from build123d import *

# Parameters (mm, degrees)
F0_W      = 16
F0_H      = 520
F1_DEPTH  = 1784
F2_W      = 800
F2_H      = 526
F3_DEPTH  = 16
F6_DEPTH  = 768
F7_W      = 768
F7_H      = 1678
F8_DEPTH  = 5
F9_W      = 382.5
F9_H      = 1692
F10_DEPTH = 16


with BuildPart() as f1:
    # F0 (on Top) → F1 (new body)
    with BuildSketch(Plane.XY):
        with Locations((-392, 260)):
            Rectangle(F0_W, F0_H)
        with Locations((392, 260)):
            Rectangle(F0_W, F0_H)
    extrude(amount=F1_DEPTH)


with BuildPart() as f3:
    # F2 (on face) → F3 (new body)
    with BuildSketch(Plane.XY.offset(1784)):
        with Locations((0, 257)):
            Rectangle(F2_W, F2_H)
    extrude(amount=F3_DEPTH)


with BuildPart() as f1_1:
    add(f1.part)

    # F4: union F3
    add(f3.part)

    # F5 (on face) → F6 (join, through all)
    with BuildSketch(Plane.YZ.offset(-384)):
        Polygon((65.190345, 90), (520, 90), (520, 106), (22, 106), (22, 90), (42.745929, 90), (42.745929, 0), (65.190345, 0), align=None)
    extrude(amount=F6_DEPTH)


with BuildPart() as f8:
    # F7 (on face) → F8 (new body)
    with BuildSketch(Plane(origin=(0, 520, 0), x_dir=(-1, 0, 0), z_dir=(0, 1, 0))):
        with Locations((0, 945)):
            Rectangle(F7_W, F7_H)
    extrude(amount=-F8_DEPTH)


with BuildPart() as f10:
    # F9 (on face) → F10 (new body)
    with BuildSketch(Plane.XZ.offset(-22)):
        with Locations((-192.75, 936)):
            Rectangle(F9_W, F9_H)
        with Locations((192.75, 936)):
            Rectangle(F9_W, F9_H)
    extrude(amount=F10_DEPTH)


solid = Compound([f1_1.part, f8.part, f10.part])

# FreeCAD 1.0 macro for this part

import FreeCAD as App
import Part
import Sketcher
from FreeCAD import Vector
Q = App.Units.Quantity


def add_polygon(sketch, points):
    """Adds a closed chain of lines whose ends are joined by coincident constraints."""
    first, n = sketch.GeometryCount, len(points)
    for a, b in zip(points, points[1:] + points[:1]):
        sketch.addGeometry(Part.LineSegment(App.Vector(*a, 0), App.Vector(*b, 0)), False)
    for i in range(n):
        sketch.addConstraint(Sketcher.Constraint("Coincident", first + i, 2, first + (i + 1) % n, 1))

doc = App.newDocument("Part")
body = doc.addObject("PartDesign::Body", "Body")
body.AllowCompound = True

# Sketch on XY plane
sketch1 = body.newObject("Sketcher::SketchObject", "Sketch")
sketch1.AttachmentSupport = (doc.getObject("XY_Plane"), [""])
sketch1.MapMode = "FlatFace"
add_polygon(sketch1, [(-400, 520), (-400, 0), (-384, 0), (-384, 520)])  # lines 0-3
add_polygon(sketch1, [(384, 520), (384, 0), (400, 0), (400, 520)])  # lines 4-7
sketch1.addConstraint(Sketcher.Constraint("Vertical", 0))
sketch1.addConstraint(Sketcher.Constraint("Horizontal", 1))
sketch1.addConstraint(Sketcher.Constraint("Vertical", 2))
sketch1.addConstraint(Sketcher.Constraint("Horizontal", 3))
sketch1.addConstraint(Sketcher.Constraint("Vertical", 4))
sketch1.addConstraint(Sketcher.Constraint("Horizontal", 5))
sketch1.addConstraint(Sketcher.Constraint("Vertical", 6))
sketch1.addConstraint(Sketcher.Constraint("Horizontal", 7))
sketch1.addConstraint(Sketcher.Constraint("Symmetric", 1, 2, 4, 2, -1, 1))
sketch1.addConstraint(Sketcher.Constraint("Symmetric", 0, 2, 5, 2, -2))
sketch1.addConstraint(Sketcher.Constraint("Horizontal", 3, 2, 6, 2))
sketch1.addConstraint(Sketcher.Constraint("DistanceX", 1, 1, 1, 2, Q("16 mm")))
sketch1.addConstraint(Sketcher.Constraint("DistanceY", 0, 2, 0, 1, Q("520 mm")))
sketch1.addConstraint(Sketcher.Constraint("DistanceX", 0, 2, -1, 1, Q("400 mm")))
pad1 = body.newObject("PartDesign::Pad", "Pad")
pad1.Profile = sketch1
pad1.Length = 1784
body2 = doc.addObject("PartDesign::Body", "Body001")

# Sketch on XY plane
sketch2 = body2.newObject("Sketcher::SketchObject", "Sketch001")
sketch2.AttachmentSupport = (doc.getObject("XY_Plane001"), [""])
sketch2.MapMode = "FlatFace"
sketch2.AttachmentOffset = App.Placement(Vector(0, 0, 1784), App.Rotation())
add_polygon(sketch2, [(-400, 520), (-400, -6), (400, -6), (400, 520)])  # lines 0-3
sketch2.addConstraint(Sketcher.Constraint("Vertical", 0))
sketch2.addConstraint(Sketcher.Constraint("Horizontal", 1))
sketch2.addConstraint(Sketcher.Constraint("Vertical", 2))
sketch2.addConstraint(Sketcher.Constraint("Horizontal", 3))
sketch2.addConstraint(Sketcher.Constraint("DistanceX", 1, 1, 1, 2, Q("800 mm")))
sketch2.addConstraint(Sketcher.Constraint("DistanceY", 0, 2, 0, 1, Q("526 mm")))
sketch2.addConstraint(Sketcher.Constraint("DistanceX", 0, 2, -1, 1, Q("400 mm")))
sketch2.addConstraint(Sketcher.Constraint("DistanceY", 0, 2, -1, 1, Q("6 mm")))
pad2 = body2.newObject("PartDesign::Pad", "Pad001")
pad2.Profile = sketch2
pad2.Length = 16
doc.recompute()

boolean = body.newObject("PartDesign::Boolean", "Boolean")
boolean.Type = "Fuse"
boolean.addObjects([body2])

# Sketch on YZ plane
sketch3 = body.newObject("Sketcher::SketchObject", "Sketch002")
sketch3.AttachmentSupport = (doc.getObject("YZ_Plane"), [""])
sketch3.MapMode = "FlatFace"
sketch3.AttachmentOffset = App.Placement(Vector(0, 0, -384), App.Rotation())
add_polygon(sketch3, [(65, 90), (520, 90), (520, 106), (22, 106), (22, 90), (43, 90), (43, 0), (65, 0)])  # lines 0-7
sketch3.addConstraint(Sketcher.Constraint("Horizontal", 0))
sketch3.addConstraint(Sketcher.Constraint("Vertical", 1))
sketch3.addConstraint(Sketcher.Constraint("Horizontal", 2))
sketch3.addConstraint(Sketcher.Constraint("Vertical", 3))
sketch3.addConstraint(Sketcher.Constraint("Horizontal", 4))
sketch3.addConstraint(Sketcher.Constraint("Vertical", 5))
sketch3.addConstraint(Sketcher.Constraint("Horizontal", 6))
sketch3.addConstraint(Sketcher.Constraint("Vertical", 7))
sketch3.addConstraint(Sketcher.Constraint("PointOnObject", 5, 2, -1))
sketch3.addConstraint(Sketcher.Constraint("Horizontal", 0, 2, 3, 2))
sketch3.addConstraint(Sketcher.Constraint("DistanceX", 2, 2, 2, 1, Q("498 mm")))
sketch3.addConstraint(Sketcher.Constraint("DistanceY", 1, 1, 1, 2, Q("16 mm")))
sketch3.addConstraint(Sketcher.Constraint("DistanceY", 5, 2, 5, 1, Q("90 mm")))
sketch3.addConstraint(Sketcher.Constraint("DistanceX", -1, 1, 0, 2, Q("520 mm")))
sketch3.addConstraint(Sketcher.Constraint("DistanceX", 4, 1, 4, 2, Q("20.745929 mm")))
sketch3.addConstraint(Sketcher.Constraint("DistanceX", 0, 1, 0, 2, Q("454.809655 mm")))
pad3 = body.newObject("PartDesign::Pad", "Pad002")
pad3.Profile = sketch3
pad3.Type = "UpToLast"
body3 = doc.addObject("PartDesign::Body", "Body002")

# Sketch on XZ plane
sketch4 = body3.newObject("Sketcher::SketchObject", "Sketch003")
sketch4.AttachmentSupport = (doc.getObject("XZ_Plane002"), [""])
sketch4.MapMode = "FlatFace"
sketch4.AttachmentOffset = App.Placement(Vector(0, 0, -520), App.Rotation())
add_polygon(sketch4, [(384, 1784), (384, 106), (-384, 106), (-384, 1784)])  # lines 0-3
sketch4.addConstraint(Sketcher.Constraint("Vertical", 0))
sketch4.addConstraint(Sketcher.Constraint("Horizontal", 1))
sketch4.addConstraint(Sketcher.Constraint("Vertical", 2))
sketch4.addConstraint(Sketcher.Constraint("Horizontal", 3))
sketch4.addConstraint(Sketcher.Constraint("DistanceX", 1, 2, 1, 1, Q("768 mm")))
sketch4.addConstraint(Sketcher.Constraint("DistanceY", 0, 2, 0, 1, Q("1678 mm")))
sketch4.addConstraint(Sketcher.Constraint("DistanceX", -1, 1, 0, 2, Q("384 mm")))
sketch4.addConstraint(Sketcher.Constraint("DistanceY", -1, 1, 0, 2, Q("106 mm")))
pad4 = body3.newObject("PartDesign::Pad", "Pad003")
pad4.Profile = sketch4
pad4.Length = 5
body4 = doc.addObject("PartDesign::Body", "Body003")
body4.AllowCompound = True

# Sketch on XZ plane
sketch5 = body4.newObject("Sketcher::SketchObject", "Sketch004")
sketch5.AttachmentSupport = (doc.getObject("XZ_Plane003"), [""])
sketch5.MapMode = "FlatFace"
sketch5.AttachmentOffset = App.Placement(Vector(0, 0, -22), App.Rotation())
add_polygon(sketch5, [(-384, 1782), (-384, 90), (-2, 90), (-2, 1782)])  # lines 0-3
add_polygon(sketch5, [(2, 1782), (2, 90), (384, 90), (384, 1782)])  # lines 4-7
sketch5.addConstraint(Sketcher.Constraint("Vertical", 0))
sketch5.addConstraint(Sketcher.Constraint("Horizontal", 1))
sketch5.addConstraint(Sketcher.Constraint("Vertical", 2))
sketch5.addConstraint(Sketcher.Constraint("Horizontal", 3))
sketch5.addConstraint(Sketcher.Constraint("Vertical", 4))
sketch5.addConstraint(Sketcher.Constraint("Horizontal", 5))
sketch5.addConstraint(Sketcher.Constraint("Vertical", 6))
sketch5.addConstraint(Sketcher.Constraint("Horizontal", 7))
sketch5.addConstraint(Sketcher.Constraint("Symmetric", 1, 2, 4, 2, -2))
sketch5.addConstraint(Sketcher.Constraint("Symmetric", 3, 2, 6, 2, -2))
sketch5.addConstraint(Sketcher.Constraint("DistanceY", 0, 2, 0, 1, Q("1692 mm")))
sketch5.addConstraint(Sketcher.Constraint("DistanceX", 1, 1, 1, 2, Q("382.5 mm")))
sketch5.addConstraint(Sketcher.Constraint("DistanceX", 0, 2, -1, 1, Q("384 mm")))
sketch5.addConstraint(Sketcher.Constraint("DistanceY", -1, 1, 0, 2, Q("90 mm")))
pad5 = body4.newObject("PartDesign::Pad", "Pad004")
pad5.Profile = sketch5
pad5.Length = 16

doc.recompute()
